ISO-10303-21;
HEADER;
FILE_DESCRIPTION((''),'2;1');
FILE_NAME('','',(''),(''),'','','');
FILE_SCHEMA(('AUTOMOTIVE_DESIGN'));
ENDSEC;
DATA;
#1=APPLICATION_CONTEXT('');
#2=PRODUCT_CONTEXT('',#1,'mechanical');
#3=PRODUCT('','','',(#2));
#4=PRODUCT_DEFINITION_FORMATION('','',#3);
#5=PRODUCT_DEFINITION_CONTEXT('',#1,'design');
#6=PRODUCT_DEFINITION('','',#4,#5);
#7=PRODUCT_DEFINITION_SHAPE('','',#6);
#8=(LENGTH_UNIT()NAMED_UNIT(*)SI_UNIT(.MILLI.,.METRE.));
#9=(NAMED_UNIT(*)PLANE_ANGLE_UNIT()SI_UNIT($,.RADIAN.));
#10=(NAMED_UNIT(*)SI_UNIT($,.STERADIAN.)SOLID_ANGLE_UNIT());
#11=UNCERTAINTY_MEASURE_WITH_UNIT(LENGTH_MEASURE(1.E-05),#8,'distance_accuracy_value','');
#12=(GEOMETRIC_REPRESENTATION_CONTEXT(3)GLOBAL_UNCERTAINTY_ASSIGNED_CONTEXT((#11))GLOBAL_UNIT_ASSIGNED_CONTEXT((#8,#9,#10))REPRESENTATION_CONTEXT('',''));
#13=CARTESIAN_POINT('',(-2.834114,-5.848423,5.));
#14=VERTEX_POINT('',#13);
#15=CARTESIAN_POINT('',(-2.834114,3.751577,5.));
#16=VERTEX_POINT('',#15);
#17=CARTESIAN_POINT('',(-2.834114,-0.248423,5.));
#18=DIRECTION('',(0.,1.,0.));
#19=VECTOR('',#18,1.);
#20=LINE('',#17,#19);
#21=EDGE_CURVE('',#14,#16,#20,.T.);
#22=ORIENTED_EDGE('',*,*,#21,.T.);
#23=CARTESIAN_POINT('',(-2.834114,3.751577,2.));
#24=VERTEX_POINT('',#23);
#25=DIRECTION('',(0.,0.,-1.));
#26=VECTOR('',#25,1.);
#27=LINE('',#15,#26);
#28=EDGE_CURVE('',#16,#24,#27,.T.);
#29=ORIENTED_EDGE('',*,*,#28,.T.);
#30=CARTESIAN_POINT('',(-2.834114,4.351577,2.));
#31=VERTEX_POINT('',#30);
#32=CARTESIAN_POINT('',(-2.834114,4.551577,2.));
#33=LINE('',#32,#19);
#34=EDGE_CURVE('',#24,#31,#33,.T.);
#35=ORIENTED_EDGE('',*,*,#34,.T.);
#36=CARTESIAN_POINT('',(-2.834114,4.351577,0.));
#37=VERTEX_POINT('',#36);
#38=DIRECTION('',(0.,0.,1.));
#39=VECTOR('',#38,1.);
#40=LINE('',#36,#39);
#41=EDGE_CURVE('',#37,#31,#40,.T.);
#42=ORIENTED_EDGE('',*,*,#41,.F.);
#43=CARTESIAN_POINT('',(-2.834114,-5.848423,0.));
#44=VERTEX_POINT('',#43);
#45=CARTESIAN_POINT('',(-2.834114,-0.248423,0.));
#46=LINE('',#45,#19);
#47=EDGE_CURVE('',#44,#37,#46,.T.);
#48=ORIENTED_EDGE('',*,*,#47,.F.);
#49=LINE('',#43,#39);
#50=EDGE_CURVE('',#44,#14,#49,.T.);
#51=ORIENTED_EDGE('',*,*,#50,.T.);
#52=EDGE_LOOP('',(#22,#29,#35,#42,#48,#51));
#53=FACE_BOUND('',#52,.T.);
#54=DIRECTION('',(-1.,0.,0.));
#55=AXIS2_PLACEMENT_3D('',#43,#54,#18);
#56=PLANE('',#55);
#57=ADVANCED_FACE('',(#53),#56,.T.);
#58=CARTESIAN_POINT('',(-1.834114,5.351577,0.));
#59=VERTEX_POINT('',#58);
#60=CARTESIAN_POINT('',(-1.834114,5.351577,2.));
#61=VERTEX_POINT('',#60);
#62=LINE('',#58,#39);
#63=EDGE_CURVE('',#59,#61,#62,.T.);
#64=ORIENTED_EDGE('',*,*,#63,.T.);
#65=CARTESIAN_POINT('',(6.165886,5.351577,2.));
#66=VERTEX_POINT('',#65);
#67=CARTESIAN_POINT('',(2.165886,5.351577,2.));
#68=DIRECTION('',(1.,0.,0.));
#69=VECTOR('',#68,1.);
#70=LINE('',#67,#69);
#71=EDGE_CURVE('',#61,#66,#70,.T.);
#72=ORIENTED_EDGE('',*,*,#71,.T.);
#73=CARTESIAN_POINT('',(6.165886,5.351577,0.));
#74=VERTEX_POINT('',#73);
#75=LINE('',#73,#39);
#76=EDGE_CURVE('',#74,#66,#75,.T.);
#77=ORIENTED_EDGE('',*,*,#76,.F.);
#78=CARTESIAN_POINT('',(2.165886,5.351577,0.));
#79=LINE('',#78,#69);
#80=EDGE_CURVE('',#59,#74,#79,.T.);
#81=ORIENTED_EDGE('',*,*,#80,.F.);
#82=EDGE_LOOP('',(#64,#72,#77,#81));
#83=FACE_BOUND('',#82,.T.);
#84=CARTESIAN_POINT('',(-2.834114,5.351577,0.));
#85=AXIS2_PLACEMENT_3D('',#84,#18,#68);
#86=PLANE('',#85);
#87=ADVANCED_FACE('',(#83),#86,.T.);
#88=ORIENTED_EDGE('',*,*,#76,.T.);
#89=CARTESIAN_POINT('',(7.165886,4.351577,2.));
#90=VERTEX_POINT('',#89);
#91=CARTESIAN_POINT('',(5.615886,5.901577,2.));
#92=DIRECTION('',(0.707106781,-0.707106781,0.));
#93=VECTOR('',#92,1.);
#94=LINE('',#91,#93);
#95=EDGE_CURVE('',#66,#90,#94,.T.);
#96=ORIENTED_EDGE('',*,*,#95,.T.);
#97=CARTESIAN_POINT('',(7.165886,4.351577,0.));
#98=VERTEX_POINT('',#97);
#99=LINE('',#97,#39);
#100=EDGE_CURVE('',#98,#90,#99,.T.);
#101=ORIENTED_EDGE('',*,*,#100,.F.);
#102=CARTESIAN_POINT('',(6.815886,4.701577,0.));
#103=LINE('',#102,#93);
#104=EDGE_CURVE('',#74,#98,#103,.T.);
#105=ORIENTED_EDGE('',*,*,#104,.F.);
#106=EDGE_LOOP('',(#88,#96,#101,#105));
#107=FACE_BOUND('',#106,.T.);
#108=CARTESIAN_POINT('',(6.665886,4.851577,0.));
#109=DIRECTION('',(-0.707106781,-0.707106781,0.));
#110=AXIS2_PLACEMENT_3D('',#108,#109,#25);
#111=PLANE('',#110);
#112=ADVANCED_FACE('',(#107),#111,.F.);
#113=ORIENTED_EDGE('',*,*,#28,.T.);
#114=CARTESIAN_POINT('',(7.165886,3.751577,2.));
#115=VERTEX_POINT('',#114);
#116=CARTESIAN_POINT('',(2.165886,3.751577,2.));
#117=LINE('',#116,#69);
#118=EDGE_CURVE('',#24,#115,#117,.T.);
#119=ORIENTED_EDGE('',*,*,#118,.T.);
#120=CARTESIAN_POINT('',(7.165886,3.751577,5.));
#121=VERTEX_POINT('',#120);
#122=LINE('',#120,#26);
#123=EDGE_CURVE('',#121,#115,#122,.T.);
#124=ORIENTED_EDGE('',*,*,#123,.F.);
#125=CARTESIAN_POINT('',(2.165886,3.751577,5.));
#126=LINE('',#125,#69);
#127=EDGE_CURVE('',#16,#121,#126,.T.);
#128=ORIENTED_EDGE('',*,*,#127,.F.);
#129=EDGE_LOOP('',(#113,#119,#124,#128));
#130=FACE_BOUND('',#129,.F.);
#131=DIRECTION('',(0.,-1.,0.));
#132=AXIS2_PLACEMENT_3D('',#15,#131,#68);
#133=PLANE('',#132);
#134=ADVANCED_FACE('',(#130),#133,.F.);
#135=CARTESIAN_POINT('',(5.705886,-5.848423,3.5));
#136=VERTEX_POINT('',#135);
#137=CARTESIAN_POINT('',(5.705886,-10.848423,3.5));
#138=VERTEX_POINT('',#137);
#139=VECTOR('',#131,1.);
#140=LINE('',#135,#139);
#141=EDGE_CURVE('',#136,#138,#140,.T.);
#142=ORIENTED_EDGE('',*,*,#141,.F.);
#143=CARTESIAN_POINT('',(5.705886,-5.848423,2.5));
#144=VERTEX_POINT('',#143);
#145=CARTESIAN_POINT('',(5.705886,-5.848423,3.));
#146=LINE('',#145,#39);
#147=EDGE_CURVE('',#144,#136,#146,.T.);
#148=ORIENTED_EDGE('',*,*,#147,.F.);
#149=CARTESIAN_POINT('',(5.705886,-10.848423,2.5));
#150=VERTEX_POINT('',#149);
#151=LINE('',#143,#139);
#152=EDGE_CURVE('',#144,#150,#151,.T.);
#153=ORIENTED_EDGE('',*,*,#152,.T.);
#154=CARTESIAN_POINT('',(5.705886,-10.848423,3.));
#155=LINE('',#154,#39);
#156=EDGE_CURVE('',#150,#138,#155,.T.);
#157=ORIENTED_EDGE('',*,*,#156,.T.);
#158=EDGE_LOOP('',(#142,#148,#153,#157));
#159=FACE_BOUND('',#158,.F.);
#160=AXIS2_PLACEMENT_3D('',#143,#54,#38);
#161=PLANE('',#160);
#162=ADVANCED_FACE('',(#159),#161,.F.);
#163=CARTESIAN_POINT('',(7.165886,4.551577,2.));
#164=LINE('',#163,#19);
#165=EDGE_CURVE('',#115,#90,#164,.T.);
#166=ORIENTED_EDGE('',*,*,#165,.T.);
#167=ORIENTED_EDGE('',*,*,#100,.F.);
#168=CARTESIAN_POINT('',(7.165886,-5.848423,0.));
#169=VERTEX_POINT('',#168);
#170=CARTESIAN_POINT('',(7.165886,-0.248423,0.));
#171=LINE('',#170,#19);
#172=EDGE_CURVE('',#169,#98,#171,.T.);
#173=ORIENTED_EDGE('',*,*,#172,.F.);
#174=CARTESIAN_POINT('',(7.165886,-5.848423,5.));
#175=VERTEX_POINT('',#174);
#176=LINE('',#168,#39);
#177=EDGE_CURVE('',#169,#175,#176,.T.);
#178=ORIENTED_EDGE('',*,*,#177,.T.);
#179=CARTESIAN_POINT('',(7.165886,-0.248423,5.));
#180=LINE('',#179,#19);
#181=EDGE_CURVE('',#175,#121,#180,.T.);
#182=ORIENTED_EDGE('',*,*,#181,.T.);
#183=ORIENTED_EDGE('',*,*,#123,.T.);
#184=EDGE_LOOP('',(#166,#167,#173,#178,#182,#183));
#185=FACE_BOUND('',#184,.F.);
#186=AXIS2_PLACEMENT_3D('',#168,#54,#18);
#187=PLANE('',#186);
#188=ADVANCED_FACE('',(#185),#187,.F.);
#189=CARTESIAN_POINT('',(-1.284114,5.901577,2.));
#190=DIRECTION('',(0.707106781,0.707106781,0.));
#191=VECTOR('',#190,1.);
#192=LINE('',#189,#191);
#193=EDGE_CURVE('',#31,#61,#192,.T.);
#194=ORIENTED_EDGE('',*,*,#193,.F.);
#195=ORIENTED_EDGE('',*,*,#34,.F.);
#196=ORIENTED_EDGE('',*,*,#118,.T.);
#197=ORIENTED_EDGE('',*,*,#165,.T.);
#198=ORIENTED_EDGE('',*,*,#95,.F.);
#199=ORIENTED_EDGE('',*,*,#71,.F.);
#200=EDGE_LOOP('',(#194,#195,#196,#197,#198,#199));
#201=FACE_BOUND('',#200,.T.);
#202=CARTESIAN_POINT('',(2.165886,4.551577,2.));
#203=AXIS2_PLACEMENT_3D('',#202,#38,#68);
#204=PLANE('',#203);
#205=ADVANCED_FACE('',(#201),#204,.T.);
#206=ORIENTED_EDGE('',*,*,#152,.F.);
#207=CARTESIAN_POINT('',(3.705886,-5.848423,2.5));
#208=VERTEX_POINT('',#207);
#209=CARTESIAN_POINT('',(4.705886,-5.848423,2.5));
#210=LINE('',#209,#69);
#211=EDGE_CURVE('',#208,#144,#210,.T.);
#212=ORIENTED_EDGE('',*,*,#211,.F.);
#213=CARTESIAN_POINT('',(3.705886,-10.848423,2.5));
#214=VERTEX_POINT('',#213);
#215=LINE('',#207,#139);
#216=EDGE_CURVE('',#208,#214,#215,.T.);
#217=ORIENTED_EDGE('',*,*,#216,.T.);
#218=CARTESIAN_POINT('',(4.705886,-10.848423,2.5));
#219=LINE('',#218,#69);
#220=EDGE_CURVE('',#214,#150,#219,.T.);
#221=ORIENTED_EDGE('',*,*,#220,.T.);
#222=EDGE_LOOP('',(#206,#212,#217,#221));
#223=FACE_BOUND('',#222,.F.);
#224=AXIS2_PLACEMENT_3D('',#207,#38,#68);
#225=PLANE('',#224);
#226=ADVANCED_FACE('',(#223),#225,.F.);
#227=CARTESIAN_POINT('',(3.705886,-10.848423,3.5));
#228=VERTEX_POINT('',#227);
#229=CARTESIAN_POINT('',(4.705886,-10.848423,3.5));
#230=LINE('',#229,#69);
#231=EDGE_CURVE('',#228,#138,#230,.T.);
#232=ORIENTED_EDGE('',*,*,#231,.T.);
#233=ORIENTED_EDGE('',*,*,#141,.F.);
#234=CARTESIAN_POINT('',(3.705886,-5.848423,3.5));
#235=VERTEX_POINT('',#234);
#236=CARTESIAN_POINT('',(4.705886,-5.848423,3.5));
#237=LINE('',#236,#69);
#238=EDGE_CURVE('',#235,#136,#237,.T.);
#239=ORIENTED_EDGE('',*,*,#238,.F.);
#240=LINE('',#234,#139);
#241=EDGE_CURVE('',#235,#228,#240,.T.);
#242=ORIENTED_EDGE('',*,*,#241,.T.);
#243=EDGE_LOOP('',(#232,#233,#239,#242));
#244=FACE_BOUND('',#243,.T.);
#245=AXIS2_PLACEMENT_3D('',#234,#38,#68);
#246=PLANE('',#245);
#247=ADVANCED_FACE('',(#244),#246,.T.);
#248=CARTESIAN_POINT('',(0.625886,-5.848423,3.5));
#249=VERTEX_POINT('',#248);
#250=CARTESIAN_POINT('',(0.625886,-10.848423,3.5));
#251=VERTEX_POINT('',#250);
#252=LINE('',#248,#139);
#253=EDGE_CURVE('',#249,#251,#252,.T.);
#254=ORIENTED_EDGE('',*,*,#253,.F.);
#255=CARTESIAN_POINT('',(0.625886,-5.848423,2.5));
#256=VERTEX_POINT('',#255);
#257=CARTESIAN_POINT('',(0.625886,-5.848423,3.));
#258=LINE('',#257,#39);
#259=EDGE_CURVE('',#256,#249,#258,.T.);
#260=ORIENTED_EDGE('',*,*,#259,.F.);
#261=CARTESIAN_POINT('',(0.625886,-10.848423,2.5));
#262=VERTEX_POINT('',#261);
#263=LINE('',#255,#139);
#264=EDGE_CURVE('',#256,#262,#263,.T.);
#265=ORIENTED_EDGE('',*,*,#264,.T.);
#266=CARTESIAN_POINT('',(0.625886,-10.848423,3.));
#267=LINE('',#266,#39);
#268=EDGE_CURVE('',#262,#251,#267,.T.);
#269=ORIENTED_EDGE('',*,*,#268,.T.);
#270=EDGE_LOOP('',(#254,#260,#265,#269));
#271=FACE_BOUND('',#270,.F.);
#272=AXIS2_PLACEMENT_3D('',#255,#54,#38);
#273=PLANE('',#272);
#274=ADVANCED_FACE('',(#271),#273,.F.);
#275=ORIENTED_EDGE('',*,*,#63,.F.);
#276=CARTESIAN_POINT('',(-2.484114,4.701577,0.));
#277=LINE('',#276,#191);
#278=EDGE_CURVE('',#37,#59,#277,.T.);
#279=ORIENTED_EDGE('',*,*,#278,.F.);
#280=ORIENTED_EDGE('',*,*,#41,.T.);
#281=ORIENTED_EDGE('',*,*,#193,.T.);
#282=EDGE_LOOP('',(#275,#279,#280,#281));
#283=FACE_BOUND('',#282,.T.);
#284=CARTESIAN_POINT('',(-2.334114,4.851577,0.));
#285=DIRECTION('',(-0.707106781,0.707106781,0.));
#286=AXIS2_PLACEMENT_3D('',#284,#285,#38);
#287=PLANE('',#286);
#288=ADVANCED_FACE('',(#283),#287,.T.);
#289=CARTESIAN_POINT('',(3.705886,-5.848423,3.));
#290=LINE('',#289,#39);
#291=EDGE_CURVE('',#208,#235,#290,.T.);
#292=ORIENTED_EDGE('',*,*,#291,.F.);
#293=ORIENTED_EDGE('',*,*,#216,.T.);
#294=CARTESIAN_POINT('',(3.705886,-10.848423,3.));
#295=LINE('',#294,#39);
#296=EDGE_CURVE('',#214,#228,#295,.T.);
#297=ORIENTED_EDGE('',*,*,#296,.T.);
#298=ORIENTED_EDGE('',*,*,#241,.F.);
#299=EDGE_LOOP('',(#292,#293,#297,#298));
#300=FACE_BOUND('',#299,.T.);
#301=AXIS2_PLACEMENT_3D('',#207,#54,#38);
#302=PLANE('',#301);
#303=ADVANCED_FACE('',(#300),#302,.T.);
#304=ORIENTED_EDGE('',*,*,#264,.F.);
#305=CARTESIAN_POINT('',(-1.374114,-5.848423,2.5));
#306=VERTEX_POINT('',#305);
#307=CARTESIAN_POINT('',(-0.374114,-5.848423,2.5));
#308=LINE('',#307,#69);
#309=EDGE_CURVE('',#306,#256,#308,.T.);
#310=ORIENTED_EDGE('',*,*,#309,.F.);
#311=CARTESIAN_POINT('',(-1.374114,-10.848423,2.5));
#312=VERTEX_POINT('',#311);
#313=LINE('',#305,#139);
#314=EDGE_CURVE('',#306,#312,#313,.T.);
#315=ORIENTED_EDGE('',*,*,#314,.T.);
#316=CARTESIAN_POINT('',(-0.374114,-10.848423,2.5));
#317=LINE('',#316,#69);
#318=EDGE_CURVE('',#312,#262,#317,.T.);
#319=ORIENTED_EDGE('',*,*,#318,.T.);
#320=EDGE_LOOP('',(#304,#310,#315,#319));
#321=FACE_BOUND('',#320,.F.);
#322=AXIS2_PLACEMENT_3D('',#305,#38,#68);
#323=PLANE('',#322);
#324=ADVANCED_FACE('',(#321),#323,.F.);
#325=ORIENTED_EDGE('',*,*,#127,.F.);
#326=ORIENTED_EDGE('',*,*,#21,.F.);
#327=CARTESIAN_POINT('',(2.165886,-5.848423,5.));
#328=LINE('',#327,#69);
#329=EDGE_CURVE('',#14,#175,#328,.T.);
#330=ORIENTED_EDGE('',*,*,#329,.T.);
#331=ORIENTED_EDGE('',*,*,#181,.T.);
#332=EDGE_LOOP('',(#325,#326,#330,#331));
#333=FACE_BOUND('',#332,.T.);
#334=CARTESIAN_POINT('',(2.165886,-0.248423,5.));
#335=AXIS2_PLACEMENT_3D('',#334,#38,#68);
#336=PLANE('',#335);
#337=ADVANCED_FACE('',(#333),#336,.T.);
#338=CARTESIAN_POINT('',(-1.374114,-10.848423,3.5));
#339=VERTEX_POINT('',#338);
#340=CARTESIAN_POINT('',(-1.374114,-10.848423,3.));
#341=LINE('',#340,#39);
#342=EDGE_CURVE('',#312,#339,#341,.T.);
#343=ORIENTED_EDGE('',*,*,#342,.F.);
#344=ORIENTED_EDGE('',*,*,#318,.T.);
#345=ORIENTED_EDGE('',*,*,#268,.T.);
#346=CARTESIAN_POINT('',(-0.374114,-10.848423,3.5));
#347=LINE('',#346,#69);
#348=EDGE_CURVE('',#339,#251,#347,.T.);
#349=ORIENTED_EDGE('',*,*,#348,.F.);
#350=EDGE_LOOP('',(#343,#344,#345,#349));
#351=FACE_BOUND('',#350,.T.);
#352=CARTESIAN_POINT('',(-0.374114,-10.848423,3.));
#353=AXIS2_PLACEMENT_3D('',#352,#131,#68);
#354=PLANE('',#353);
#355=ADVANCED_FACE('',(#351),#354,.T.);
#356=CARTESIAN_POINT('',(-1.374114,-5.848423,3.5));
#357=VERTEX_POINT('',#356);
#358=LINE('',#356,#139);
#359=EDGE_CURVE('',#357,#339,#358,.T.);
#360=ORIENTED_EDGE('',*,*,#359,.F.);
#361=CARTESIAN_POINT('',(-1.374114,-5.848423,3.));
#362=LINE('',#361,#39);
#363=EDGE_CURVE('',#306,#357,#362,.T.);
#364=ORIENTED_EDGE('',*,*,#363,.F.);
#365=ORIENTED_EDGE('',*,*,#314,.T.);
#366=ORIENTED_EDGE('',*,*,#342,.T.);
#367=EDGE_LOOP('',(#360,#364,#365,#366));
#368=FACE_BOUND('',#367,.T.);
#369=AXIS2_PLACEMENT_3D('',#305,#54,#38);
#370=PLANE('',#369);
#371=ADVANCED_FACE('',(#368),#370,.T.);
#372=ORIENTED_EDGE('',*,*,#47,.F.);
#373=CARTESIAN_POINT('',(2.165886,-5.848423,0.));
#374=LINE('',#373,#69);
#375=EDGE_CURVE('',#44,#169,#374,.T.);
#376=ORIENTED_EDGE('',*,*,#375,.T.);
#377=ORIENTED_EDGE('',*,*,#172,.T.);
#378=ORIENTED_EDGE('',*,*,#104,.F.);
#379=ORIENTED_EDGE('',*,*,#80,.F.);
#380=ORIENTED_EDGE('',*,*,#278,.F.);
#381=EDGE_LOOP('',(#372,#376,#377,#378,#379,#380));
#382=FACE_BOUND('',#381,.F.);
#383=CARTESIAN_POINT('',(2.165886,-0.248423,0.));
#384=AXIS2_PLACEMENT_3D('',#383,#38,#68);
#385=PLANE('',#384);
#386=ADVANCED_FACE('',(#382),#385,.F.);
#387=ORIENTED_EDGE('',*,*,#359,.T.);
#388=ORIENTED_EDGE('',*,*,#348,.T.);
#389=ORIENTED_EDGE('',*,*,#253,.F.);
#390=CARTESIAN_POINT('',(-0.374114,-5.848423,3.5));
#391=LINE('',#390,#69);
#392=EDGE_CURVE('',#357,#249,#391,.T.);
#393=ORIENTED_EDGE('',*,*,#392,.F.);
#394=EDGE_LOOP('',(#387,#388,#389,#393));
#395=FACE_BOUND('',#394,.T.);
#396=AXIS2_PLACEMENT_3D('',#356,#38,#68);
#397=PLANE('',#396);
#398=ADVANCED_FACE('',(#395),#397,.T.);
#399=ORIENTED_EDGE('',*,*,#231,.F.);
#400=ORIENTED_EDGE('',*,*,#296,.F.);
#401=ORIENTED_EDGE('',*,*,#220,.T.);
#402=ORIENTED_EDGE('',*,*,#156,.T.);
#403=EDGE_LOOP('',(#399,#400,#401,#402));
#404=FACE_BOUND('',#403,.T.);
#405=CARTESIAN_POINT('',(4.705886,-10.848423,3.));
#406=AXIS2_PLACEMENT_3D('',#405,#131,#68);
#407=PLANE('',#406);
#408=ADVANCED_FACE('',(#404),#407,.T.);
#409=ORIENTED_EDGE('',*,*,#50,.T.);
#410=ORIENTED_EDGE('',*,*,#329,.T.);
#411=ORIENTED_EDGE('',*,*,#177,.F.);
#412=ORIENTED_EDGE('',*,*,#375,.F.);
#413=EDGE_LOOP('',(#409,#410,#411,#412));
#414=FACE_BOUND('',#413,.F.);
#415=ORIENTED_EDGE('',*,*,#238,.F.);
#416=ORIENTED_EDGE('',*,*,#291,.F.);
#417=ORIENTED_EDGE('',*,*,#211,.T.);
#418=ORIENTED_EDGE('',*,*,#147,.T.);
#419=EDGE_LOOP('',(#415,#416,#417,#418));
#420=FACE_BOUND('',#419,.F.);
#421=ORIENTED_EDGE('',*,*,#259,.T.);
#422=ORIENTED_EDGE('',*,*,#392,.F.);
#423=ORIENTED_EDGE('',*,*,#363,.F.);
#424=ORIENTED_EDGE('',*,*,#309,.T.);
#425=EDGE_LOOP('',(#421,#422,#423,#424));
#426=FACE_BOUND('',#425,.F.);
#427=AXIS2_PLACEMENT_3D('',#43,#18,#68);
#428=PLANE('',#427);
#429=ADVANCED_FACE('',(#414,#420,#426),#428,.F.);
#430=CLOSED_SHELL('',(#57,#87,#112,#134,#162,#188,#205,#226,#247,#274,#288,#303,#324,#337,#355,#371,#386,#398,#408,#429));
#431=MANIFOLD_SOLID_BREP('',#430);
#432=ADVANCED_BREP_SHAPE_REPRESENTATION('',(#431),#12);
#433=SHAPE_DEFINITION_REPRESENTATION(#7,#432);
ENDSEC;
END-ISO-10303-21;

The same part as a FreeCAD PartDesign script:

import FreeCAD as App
import Part
import Sketcher
Q = App.Units.Quantity


def edges_at(feature, points):
    """Names of the edges that pass closest to the given points."""
    edges = feature.Shape.Edges
    near = lambda p: min(range(len(edges)), key=lambda i: edges[i].distToShape(Part.Vertex(*p))[0])
    return sorted({f"Edge{near(p) + 1}" for p in points})


def add_polygon(sketch, points):
    """Adds a closed chain of lines whose ends are joined by coincident constraints."""
    first, n = sketch.GeometryCount, len(points)
    for a, b in zip(points, points[1:] + points[:1]):
        sketch.addGeometry(Part.LineSegment(App.Vector(*a, 0), App.Vector(*b, 0)), False)
    for i in range(n):
        sketch.addConstraint(Sketcher.Constraint("Coincident", first + i, 2, first + (i + 1) % n, 1))

doc = App.newDocument("Part")
body = doc.addObject("PartDesign::Body", "Body")

sketch1 = body.newObject("Sketcher::SketchObject", "Sketch")
sketch1.AttachmentSupport = (doc.getObject("XY_Plane"), [""])
sketch1.MapMode = "FlatFace"
add_polygon(sketch1, [(-3, 5), (-3, -6), (7, -6), (7, 5)])
sketch1.addConstraint([
    Sketcher.Constraint("Vertical", 0),
    Sketcher.Constraint("Horizontal", 1),
    Sketcher.Constraint("Vertical", 2),
    Sketcher.Constraint("Horizontal", 3),
    Sketcher.Constraint("DistanceX", 1, 1, 1, 2, Q("10 mm")),
    Sketcher.Constraint("DistanceY", 0, 2, 0, 1, Q("11.2 mm")),
    Sketcher.Constraint("DistanceX", 0, 2, -1, 1, Q("2.834114 mm")),
    Sketcher.Constraint("DistanceY", 0, 2, -1, 1, Q("5.848423 mm")),
])
pad1 = body.newObject("PartDesign::Pad", "Pad")
pad1.Profile = sketch1
pad1.Length = 5

sketch2 = body.newObject("Sketcher::SketchObject", "Sketch001")
sketch2.AttachmentSupport = (doc.getObject("XY_Plane"), [""])
sketch2.MapMode = "FlatFace"
sketch2.AttachmentOffset = App.Placement(App.Vector(0, 0, 5), App.Rotation())
add_polygon(sketch2, [(-2.8, 5.4), (-2.8, 3.8), (7.2, 3.8), (7.2, 5.4)])
sketch2.addConstraint([
    Sketcher.Constraint("Vertical", 0),
    Sketcher.Constraint("Horizontal", 1),
    Sketcher.Constraint("Vertical", 2),
    Sketcher.Constraint("Horizontal", 3),
    Sketcher.Constraint("DistanceX", 1, 1, 1, 2, Q("10 mm")),
    Sketcher.Constraint("DistanceY", 0, 2, 0, 1, Q("1.6 mm")),
    Sketcher.Constraint("DistanceX", 0, 2, -1, 1, Q("2.834114 mm")),
    Sketcher.Constraint("DistanceY", -1, 1, 0, 2, Q("3.751577 mm")),
])
pocket1 = body.newObject("PartDesign::Pocket", "Pocket")
pocket1.Profile = sketch2
pocket1.Length = 3
doc.recompute()

chamfer = body.newObject("PartDesign::Chamfer", "Chamfer")
chamfer.Base = (pocket1, edges_at(pocket1, [(7.166, 5.352, 1), (-2.834, 5.352, 1)]))
chamfer.Size = 1

sketch3 = body.newObject("Sketcher::SketchObject", "Sketch002")
sketch3.AttachmentSupport = (doc.getObject("XZ_Plane"), [""])
sketch3.MapMode = "FlatFace"
sketch3.AttachmentOffset = App.Placement(App.Vector(0, 0, 5.848423), App.Rotation())
add_polygon(sketch3, [(-1.4, 3.5), (-1.4, 2.5), (0.6, 2.5), (0.6, 3.5)])
add_polygon(sketch3, [(3.7, 3.5), (3.7, 2.5), (5.7, 2.5), (5.7, 3.5)])
sketch3.addConstraint([
    Sketcher.Constraint("Vertical", 0),
    Sketcher.Constraint("Horizontal", 1),
    Sketcher.Constraint("Vertical", 2),
    Sketcher.Constraint("Horizontal", 3),
    Sketcher.Constraint("Vertical", 4),
    Sketcher.Constraint("Horizontal", 5),
    Sketcher.Constraint("Vertical", 6),
    Sketcher.Constraint("Horizontal", 7),
    Sketcher.Constraint("Horizontal", 1, 2, 4, 2),
    Sketcher.Constraint("Horizontal", 3, 2, 6, 2),
    Sketcher.Constraint("Equal", 3, 5),
    Sketcher.Constraint("DistanceX", 1, 1, 1, 2, Q("2 mm")),
    Sketcher.Constraint("DistanceY", 0, 2, 0, 1, Q("1 mm")),
    Sketcher.Constraint("DistanceY", -1, 1, 0, 2, Q("2.5 mm")),
    Sketcher.Constraint("DistanceX", 1, 2, 4, 2, Q("3.08 mm")),
    Sketcher.Constraint("DistanceX", 0, 2, -1, 1, Q("1.374114 mm")),
])
pad2 = body.newObject("PartDesign::Pad", "Pad001")
pad2.Profile = sketch3
pad2.Length = 5

doc.recompute()
